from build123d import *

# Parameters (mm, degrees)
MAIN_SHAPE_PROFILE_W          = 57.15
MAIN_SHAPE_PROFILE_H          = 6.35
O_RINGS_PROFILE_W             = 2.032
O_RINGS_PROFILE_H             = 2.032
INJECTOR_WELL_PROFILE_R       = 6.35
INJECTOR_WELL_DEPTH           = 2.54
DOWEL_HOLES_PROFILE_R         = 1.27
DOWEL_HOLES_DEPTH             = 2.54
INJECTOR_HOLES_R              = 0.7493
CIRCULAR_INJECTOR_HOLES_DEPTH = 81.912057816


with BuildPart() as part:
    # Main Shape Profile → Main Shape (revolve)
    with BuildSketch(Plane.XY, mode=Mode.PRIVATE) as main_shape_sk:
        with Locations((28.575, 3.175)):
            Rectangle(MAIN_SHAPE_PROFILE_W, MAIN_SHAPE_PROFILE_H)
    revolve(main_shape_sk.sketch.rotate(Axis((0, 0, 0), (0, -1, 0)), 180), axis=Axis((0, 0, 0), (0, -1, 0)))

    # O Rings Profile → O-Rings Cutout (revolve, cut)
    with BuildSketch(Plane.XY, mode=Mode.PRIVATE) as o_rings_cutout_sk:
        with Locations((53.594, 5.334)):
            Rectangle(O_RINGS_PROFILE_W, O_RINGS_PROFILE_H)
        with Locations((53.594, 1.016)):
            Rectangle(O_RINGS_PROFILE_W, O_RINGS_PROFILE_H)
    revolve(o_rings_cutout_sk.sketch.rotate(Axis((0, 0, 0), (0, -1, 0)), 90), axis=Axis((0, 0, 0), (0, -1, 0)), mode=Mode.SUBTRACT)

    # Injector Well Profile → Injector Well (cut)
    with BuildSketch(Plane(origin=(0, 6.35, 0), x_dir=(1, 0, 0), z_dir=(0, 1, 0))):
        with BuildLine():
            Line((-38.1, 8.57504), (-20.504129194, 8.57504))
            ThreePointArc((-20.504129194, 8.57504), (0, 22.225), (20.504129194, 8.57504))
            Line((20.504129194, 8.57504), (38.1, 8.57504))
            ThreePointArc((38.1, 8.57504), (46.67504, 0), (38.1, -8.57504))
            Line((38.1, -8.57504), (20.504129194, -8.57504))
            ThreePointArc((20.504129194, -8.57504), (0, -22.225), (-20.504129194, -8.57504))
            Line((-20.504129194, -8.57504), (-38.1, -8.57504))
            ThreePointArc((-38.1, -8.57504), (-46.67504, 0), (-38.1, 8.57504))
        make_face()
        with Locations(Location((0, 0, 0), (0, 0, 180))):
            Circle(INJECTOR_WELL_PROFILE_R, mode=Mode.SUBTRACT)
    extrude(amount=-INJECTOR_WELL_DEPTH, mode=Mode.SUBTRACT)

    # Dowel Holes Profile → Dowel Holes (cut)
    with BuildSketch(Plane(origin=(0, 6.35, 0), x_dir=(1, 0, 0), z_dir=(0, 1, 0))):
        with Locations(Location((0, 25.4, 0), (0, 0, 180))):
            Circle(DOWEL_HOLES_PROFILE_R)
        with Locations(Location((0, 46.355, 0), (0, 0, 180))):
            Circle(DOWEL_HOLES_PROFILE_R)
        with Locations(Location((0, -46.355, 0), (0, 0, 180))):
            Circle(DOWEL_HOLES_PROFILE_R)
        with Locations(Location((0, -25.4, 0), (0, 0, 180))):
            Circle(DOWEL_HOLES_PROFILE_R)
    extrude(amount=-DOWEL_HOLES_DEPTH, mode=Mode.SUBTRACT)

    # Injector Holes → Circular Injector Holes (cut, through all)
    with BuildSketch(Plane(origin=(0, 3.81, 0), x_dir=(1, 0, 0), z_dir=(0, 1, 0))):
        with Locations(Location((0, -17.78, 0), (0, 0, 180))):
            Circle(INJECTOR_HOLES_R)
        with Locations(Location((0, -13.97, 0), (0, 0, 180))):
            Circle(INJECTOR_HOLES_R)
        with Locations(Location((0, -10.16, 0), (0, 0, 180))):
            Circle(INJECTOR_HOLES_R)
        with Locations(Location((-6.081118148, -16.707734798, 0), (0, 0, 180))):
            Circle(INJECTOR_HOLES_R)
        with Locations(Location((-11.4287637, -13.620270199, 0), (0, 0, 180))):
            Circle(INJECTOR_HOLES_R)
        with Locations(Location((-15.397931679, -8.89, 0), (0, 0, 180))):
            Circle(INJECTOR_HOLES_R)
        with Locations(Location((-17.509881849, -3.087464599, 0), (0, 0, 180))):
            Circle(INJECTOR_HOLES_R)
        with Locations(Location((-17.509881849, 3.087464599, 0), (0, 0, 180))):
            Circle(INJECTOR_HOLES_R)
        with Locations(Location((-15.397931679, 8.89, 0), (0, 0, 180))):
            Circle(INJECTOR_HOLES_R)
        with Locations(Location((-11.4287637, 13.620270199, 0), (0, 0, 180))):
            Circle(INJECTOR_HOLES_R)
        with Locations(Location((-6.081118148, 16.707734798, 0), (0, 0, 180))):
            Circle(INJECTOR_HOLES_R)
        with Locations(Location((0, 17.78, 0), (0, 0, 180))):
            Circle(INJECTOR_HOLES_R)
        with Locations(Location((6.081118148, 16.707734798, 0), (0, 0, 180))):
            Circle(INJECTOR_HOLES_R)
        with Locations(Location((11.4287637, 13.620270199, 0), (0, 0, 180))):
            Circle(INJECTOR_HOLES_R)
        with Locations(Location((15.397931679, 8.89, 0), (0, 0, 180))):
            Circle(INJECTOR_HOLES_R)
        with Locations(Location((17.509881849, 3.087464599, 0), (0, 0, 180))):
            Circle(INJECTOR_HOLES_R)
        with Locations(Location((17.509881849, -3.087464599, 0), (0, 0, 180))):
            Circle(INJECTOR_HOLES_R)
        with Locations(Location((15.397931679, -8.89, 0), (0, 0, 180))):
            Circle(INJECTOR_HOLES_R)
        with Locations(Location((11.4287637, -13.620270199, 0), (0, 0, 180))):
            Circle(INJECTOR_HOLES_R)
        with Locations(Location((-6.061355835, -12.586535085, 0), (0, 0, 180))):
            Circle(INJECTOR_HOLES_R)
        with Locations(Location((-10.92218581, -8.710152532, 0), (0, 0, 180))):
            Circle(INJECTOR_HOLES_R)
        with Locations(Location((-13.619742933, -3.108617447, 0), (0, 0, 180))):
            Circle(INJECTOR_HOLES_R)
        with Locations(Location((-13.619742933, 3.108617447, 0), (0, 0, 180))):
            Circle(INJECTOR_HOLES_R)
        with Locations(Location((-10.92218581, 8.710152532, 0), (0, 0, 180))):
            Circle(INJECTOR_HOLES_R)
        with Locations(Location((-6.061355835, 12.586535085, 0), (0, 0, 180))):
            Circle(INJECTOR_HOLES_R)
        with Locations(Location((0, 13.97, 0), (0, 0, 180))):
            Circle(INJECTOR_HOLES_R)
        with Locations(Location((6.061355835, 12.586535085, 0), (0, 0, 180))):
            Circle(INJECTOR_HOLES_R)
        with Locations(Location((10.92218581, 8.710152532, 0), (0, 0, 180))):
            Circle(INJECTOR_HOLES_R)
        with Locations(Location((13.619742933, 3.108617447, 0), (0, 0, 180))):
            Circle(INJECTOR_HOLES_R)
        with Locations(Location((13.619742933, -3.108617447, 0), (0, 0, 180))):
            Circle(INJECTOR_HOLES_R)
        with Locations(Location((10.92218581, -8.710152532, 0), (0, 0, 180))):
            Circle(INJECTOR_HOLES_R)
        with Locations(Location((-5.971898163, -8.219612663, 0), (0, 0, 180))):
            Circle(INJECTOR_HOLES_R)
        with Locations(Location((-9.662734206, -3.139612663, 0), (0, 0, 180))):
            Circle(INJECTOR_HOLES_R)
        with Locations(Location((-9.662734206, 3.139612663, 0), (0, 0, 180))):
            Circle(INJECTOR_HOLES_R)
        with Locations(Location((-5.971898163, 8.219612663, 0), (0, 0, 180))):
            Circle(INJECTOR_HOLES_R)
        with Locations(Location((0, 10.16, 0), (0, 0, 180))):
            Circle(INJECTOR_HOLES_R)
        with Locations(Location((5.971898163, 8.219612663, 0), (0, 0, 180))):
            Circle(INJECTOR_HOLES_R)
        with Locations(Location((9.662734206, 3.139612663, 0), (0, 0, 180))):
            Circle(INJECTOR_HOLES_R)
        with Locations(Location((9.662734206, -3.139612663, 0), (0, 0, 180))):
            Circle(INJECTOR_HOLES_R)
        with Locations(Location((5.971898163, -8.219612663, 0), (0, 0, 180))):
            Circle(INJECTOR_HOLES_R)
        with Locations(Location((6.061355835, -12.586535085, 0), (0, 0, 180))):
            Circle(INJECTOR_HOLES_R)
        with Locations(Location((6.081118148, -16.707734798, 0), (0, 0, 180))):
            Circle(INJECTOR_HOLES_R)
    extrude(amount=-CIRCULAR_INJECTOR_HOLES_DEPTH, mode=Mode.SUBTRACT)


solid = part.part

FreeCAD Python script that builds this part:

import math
import FreeCAD as App
import Part
import Sketcher
from FreeCAD import Vector
Q = App.Units.Quantity

doc = App.newDocument("Part")
body = doc.addObject("PartDesign::Body", "Body")

# Sketch on XY plane
sketch1 = body.newObject("Sketcher::SketchObject", "Sketch")
sketch1.AttachmentSupport = (doc.getObject("XY_Plane"), [""])
sketch1.MapMode = "FlatFace"
sketch1.addGeometry([
    Part.LineSegment(Vector(0, 6, 0), Vector(0, 0, 0)),
    Part.LineSegment(Vector(0, 0, 0), Vector(57, 0, 0)),
    Part.LineSegment(Vector(57, 0, 0), Vector(57, 6, 0)),
    Part.LineSegment(Vector(57, 6, 0), Vector(0, 6, 0)),
], False)
sketch1.addConstraint([
    Sketcher.Constraint("Coincident", 0, 2, 1, 1),
    Sketcher.Constraint("Coincident", 1, 2, 2, 1),
    Sketcher.Constraint("Coincident", 2, 2, 3, 1),
    Sketcher.Constraint("Coincident", 3, 2, 0, 1),
    Sketcher.Constraint("Vertical", 0),
    Sketcher.Constraint("Horizontal", 1),
    Sketcher.Constraint("Vertical", 2),
    Sketcher.Constraint("Horizontal", 3),
    Sketcher.Constraint("Coincident", 0, 2, -1, 1),
    Sketcher.Constraint("DistanceX", 1, 1, 1, 2, Q("2.25 in")),
    Sketcher.Constraint("DistanceY", 0, 2, 0, 1, Q("0.25 in")),
])
revolution = body.newObject("PartDesign::Revolution", "Revolution")
revolution.Profile = sketch1
revolution.ReferenceAxis = (sketch1, ["V_Axis"])
revolution.Angle = 360

# Sketch on XY plane
sketch2 = body.newObject("Sketcher::SketchObject", "Sketch001")
sketch2.AttachmentSupport = (doc.getObject("XY_Plane"), [""])
sketch2.MapMode = "FlatFace"
sketch2.addGeometry([
    Part.LineSegment(Vector(52.6, 6.3, 0), Vector(52.6, 4.3, 0)),  # 0
    Part.LineSegment(Vector(52.6, 4.3, 0), Vector(54.6, 4.3, 0)),  # 1
    Part.LineSegment(Vector(54.6, 4.3, 0), Vector(54.6, 6.3, 0)),  # 2
    Part.LineSegment(Vector(54.6, 6.3, 0), Vector(52.6, 6.3, 0)),  # 3
    Part.LineSegment(Vector(52.6, 2, 0), Vector(52.6, 0, 0)),  # 4
    Part.LineSegment(Vector(52.6, 0, 0), Vector(54.6, 0, 0)),  # 5
    Part.LineSegment(Vector(54.6, 0, 0), Vector(54.6, 2, 0)),  # 6
    Part.LineSegment(Vector(54.6, 2, 0), Vector(52.6, 2, 0)),  # 7
], False)
sketch2.addConstraint([
    Sketcher.Constraint("Coincident", 0, 2, 1, 1),
    Sketcher.Constraint("Coincident", 1, 2, 2, 1),
    Sketcher.Constraint("Coincident", 2, 2, 3, 1),
    Sketcher.Constraint("Coincident", 3, 2, 0, 1),
    Sketcher.Constraint("Coincident", 4, 2, 5, 1),
    Sketcher.Constraint("Coincident", 5, 2, 6, 1),
    Sketcher.Constraint("Coincident", 6, 2, 7, 1),
    Sketcher.Constraint("Coincident", 7, 2, 4, 1),
    Sketcher.Constraint("Vertical", 0),
    Sketcher.Constraint("Horizontal", 1),
    Sketcher.Constraint("Vertical", 2),
    Sketcher.Constraint("Horizontal", 3),
    Sketcher.Constraint("Vertical", 4),
    Sketcher.Constraint("Horizontal", 5),
    Sketcher.Constraint("Vertical", 6),
    Sketcher.Constraint("Horizontal", 7),
    Sketcher.Constraint("PointOnObject", 4, 2, -1),
    Sketcher.Constraint("Vertical", 3, 2, 4, 2),
    Sketcher.Constraint("Vertical", 2, 2, 5, 2),
    Sketcher.Constraint("Equal", 7, 0),
    Sketcher.Constraint("Equal", 2, 4),
    Sketcher.Constraint("DistanceX", 1, 1, 1, 2, Q("0.08 in")),
    Sketcher.Constraint("DistanceX", -1, 1, 0, 2, Q("2.07 in")),
    Sketcher.Constraint("DistanceY", -1, 1, 0, 2, Q("0.17 in")),
])
groove = body.newObject("PartDesign::Groove", "Groove")
groove.Profile = sketch2
groove.ReferenceAxis = (sketch2, ["V_Axis"])
groove.Angle = 360

# Sketch on XZ plane
sketch3 = body.newObject("Sketcher::SketchObject", "Sketch002")
sketch3.AttachmentSupport = (doc.getObject("XZ_Plane"), [""])
sketch3.MapMode = "FlatFace"
sketch3.AttachmentOffset = App.Placement(Vector(0, 0, -0.25 * 25.4), App.Rotation())
sketch3.addGeometry([
    Part.LineSegment(Vector(-21, -9, 0), Vector(-38, -9, 0)),  # 0
    Part.ArcOfCircle(Part.Circle(Vector(-38, 0, 0), Vector(0, 0, 1), 9), math.radians(90), math.radians(270)),  # 1
    Part.LineSegment(Vector(-38, 9, 0), Vector(-21, 9, 0)),  # 2
    Part.ArcOfCircle(Part.Circle(Vector(0, 0, 0), Vector(0, 0, 1), 22), math.radians(23), math.radians(157)),  # 3
    Part.LineSegment(Vector(21, 9, 0), Vector(38, 9, 0)),  # 4
    Part.ArcOfCircle(Part.Circle(Vector(38, 0, 0), Vector(0, 0, 1), 9), math.radians(-90), math.radians(90)),  # 5
    Part.LineSegment(Vector(38, -9, 0), Vector(21, -9, 0)),  # 6
    Part.ArcOfCircle(Part.Circle(Vector(0, 0, 0), Vector(0, 0, 1), 22), math.radians(-157), math.radians(-23)),  # 7
    Part.Circle(Vector(0, 0, 0), Vector(0, 0, 1), 6),  # 8
], False)
sketch3.addConstraint([
    Sketcher.Constraint("Tangent", 0, 2, 1, 2),
    Sketcher.Constraint("Tangent", 1, 1, 2, 1),
    Sketcher.Constraint("Coincident", 2, 2, 3, 2),
    Sketcher.Constraint("Coincident", 3, 1, 4, 1),
    Sketcher.Constraint("Tangent", 4, 2, 5, 2),
    Sketcher.Constraint("Tangent", 5, 1, 6, 1),
    Sketcher.Constraint("Coincident", 6, 2, 7, 2),
    Sketcher.Constraint("Coincident", 7, 1, 0, 1),
    Sketcher.Constraint("Horizontal", 0),
    Sketcher.Constraint("Horizontal", 2),
    Sketcher.Constraint("Horizontal", 4),
    Sketcher.Constraint("Horizontal", 6),
    Sketcher.Constraint("Coincident", 3, 3, -1, 1),
    Sketcher.Constraint("Coincident", 7, 3, -1, 1),
    Sketcher.Constraint("Coincident", 8, 3, -1, 1),
    Sketcher.Constraint("Equal", 1, 5),
    Sketcher.Constraint("Equal", 3, 7),
    Sketcher.Constraint("Symmetric", 1, 3, 5, 3, -1, 1),
    Sketcher.Constraint("PointOnObject", 1, 3, -1),
    Sketcher.Constraint("Diameter", 8, Q("0.5 in")),
    Sketcher.Constraint("Radius", 3, Q("0.875 in")),
    Sketcher.Constraint("DistanceX", 1, 3, 5, 3, Q("3 in")),
    Sketcher.Constraint("Radius", 1, Q("0.3376 in")),
])
pocket1 = body.newObject("PartDesign::Pocket", "Pocket")
pocket1.Profile = sketch3
pocket1.Length = Q("0.1 in")
pocket1.Reversed = True

# Sketch on XZ plane
sketch4 = body.newObject("Sketcher::SketchObject", "Sketch003")
sketch4.AttachmentSupport = (doc.getObject("XZ_Plane"), [""])
sketch4.MapMode = "FlatFace"
sketch4.AttachmentOffset = App.Placement(Vector(0, 0, -0.25 * 25.4), App.Rotation())
sketch4.addGeometry([
    Part.Circle(Vector(0, -25.4, 0), Vector(0, 0, 1), 1.3),
    Part.Circle(Vector(0, -46.4, 0), Vector(0, 0, 1), 1.3),
    Part.Circle(Vector(0, 46.4, 0), Vector(0, 0, 1), 1.3),
    Part.Circle(Vector(0, 25.4, 0), Vector(0, 0, 1), 1.3),
], False)
sketch4.addConstraint([
    Sketcher.Constraint("Equal", 0, 1),
    Sketcher.Constraint("Equal", 1, 2),
    Sketcher.Constraint("Equal", 2, 3),
    Sketcher.Constraint("Symmetric", 1, 3, 2, 3, -1, 1),
    Sketcher.Constraint("Symmetric", 0, 3, 3, 3, -1, 1),
    Sketcher.Constraint("PointOnObject", 0, 3, -2),
    Sketcher.Constraint("PointOnObject", 1, 3, -2),
    Sketcher.Constraint("Diameter", 0, Q("0.1 in")),
    Sketcher.Constraint("DistanceY", 0, 3, -1, 1, Q("1 in")),
    Sketcher.Constraint("DistanceY", 1, 3, 2, 3, Q("3.65 in")),
])
pocket2 = body.newObject("PartDesign::Pocket", "Pocket001")
pocket2.Profile = sketch4
pocket2.Length = Q("0.1 in")
pocket2.Reversed = True

# Sketch on XZ plane
sketch5 = body.newObject("Sketcher::SketchObject", "Sketch004")
sketch5.AttachmentSupport = (doc.getObject("XZ_Plane"), [""])
sketch5.MapMode = "FlatFace"
sketch5.AttachmentOffset = App.Placement(Vector(0, 0, -0.15 * 25.4), App.Rotation())
sketch5.addGeometry([
    Part.Circle(Vector(0, 17.8, 0), Vector(0, 0, 1), 0.7),  # 0
    Part.Circle(Vector(0, 14, 0), Vector(0, 0, 1), 0.7),  # 1
    Part.Circle(Vector(0, 10.2, 0), Vector(0, 0, 1), 0.7),  # 2
    Part.Circle(Vector(-6.1, 16.7, 0), Vector(0, 0, 1), 0.7),  # 3
    Part.Circle(Vector(-11.4, 13.6, 0), Vector(0, 0, 1), 0.7),  # 4
    Part.Circle(Vector(-15.4, 8.9, 0), Vector(0, 0, 1), 0.7),  # 5
    Part.Circle(Vector(-17.5, 3.1, 0), Vector(0, 0, 1), 0.7),  # 6
    Part.Circle(Vector(-17.5, -3.1, 0), Vector(0, 0, 1), 0.7),  # 7
    Part.Circle(Vector(-15.4, -8.9, 0), Vector(0, 0, 1), 0.7),  # 8
    Part.Circle(Vector(-11.4, -13.6, 0), Vector(0, 0, 1), 0.7),  # 9
    Part.Circle(Vector(-6.1, -16.7, 0), Vector(0, 0, 1), 0.7),  # 10
    Part.Circle(Vector(0, -17.8, 0), Vector(0, 0, 1), 0.7),  # 11
    Part.Circle(Vector(6.1, -16.7, 0), Vector(0, 0, 1), 0.7),  # 12
    Part.Circle(Vector(11.4, -13.6, 0), Vector(0, 0, 1), 0.7),  # 13
    Part.Circle(Vector(15.4, -8.9, 0), Vector(0, 0, 1), 0.7),  # 14
    Part.Circle(Vector(17.5, -3.1, 0), Vector(0, 0, 1), 0.7),  # 15
    Part.Circle(Vector(17.5, 3.1, 0), Vector(0, 0, 1), 0.7),  # 16
    Part.Circle(Vector(15.4, 8.9, 0), Vector(0, 0, 1), 0.7),  # 17
    Part.Circle(Vector(11.4, 13.6, 0), Vector(0, 0, 1), 0.7),  # 18
    Part.Circle(Vector(-6.1, 12.6, 0), Vector(0, 0, 1), 0.7),  # 19
    Part.Circle(Vector(-10.9, 8.7, 0), Vector(0, 0, 1), 0.7),  # 20
    Part.Circle(Vector(-13.6, 3.1, 0), Vector(0, 0, 1), 0.7),  # 21
    Part.Circle(Vector(-13.6, -3.1, 0), Vector(0, 0, 1), 0.7),  # 22
    Part.Circle(Vector(-10.9, -8.7, 0), Vector(0, 0, 1), 0.7),  # 23
    Part.Circle(Vector(-6.1, -12.6, 0), Vector(0, 0, 1), 0.7),  # 24
    Part.Circle(Vector(0, -14, 0), Vector(0, 0, 1), 0.7),  # 25
    Part.Circle(Vector(6.1, -12.6, 0), Vector(0, 0, 1), 0.7),  # 26
    Part.Circle(Vector(10.9, -8.7, 0), Vector(0, 0, 1), 0.7),  # 27
    Part.Circle(Vector(13.6, -3.1, 0), Vector(0, 0, 1), 0.7),  # 28
    Part.Circle(Vector(13.6, 3.1, 0), Vector(0, 0, 1), 0.7),  # 29
    Part.Circle(Vector(10.9, 8.7, 0), Vector(0, 0, 1), 0.7),  # 30
    Part.Circle(Vector(-6, 8.2, 0), Vector(0, 0, 1), 0.7),  # 31
    Part.Circle(Vector(-9.7, 3.1, 0), Vector(0, 0, 1), 0.7),  # 32
    Part.Circle(Vector(-9.7, -3.1, 0), Vector(0, 0, 1), 0.7),  # 33
    Part.Circle(Vector(-6, -8.2, 0), Vector(0, 0, 1), 0.7),  # 34
    Part.Circle(Vector(0, -10.2, 0), Vector(0, 0, 1), 0.7),  # 35
    Part.Circle(Vector(6, -8.2, 0), Vector(0, 0, 1), 0.7),  # 36
    Part.Circle(Vector(9.7, -3.1, 0), Vector(0, 0, 1), 0.7),  # 37
    Part.Circle(Vector(9.7, 3.1, 0), Vector(0, 0, 1), 0.7),  # 38
    Part.Circle(Vector(6, 8.2, 0), Vector(0, 0, 1), 0.7),  # 39
    Part.Circle(Vector(6.1, 12.6, 0), Vector(0, 0, 1), 0.7),  # 40
    Part.Circle(Vector(6.1, 16.7, 0), Vector(0, 0, 1), 0.7),  # 41
], False)
sketch5.addConstraint([
    Sketcher.Constraint("Equal", 0, 1),
    Sketcher.Constraint("Equal", 1, 2),
    Sketcher.Constraint("Equal", 2, 3),
    Sketcher.Constraint("Equal", 3, 4),
    Sketcher.Constraint("Equal", 4, 5),
    Sketcher.Constraint("Equal", 5, 6),
    Sketcher.Constraint("Equal", 6, 7),
    Sketcher.Constraint("Equal", 7, 8),
    Sketcher.Constraint("Equal", 8, 9),
    Sketcher.Constraint("Equal", 9, 10),
    Sketcher.Constraint("Equal", 10, 11),
    Sketcher.Constraint("Equal", 11, 12),
    Sketcher.Constraint("Equal", 12, 13),
    Sketcher.Constraint("Equal", 13, 14),
    Sketcher.Constraint("Equal", 14, 15),
    Sketcher.Constraint("Equal", 15, 16),
    Sketcher.Constraint("Equal", 16, 17),
    Sketcher.Constraint("Equal", 17, 18),
    Sketcher.Constraint("Equal", 18, 19),
    Sketcher.Constraint("Equal", 19, 20),
    Sketcher.Constraint("Equal", 20, 21),
    Sketcher.Constraint("Equal", 21, 22),
    Sketcher.Constraint("Equal", 22, 23),
    Sketcher.Constraint("Equal", 23, 24),
    Sketcher.Constraint("Equal", 24, 25),
    Sketcher.Constraint("Equal", 25, 26),
    Sketcher.Constraint("Equal", 26, 27),
    Sketcher.Constraint("Equal", 27, 28),
    Sketcher.Constraint("Equal", 28, 29),
    Sketcher.Constraint("Equal", 29, 30),
    Sketcher.Constraint("Equal", 30, 31),
    Sketcher.Constraint("Equal", 31, 32),
    Sketcher.Constraint("Equal", 32, 33),
    Sketcher.Constraint("Equal", 33, 34),
    Sketcher.Constraint("Equal", 34, 35),
    Sketcher.Constraint("Equal", 35, 36),
    Sketcher.Constraint("Equal", 36, 37),
    Sketcher.Constraint("Equal", 37, 38),
    Sketcher.Constraint("Equal", 38, 39),
    Sketcher.Constraint("Equal", 39, 40),
    Sketcher.Constraint("Equal", 40, 41),
    Sketcher.Constraint("Symmetric", 0, 3, 11, 3, -1, 1),
    Sketcher.Constraint("Symmetric", 3, 3, 12, 3, -1, 1),
    Sketcher.Constraint("Symmetric", 4, 3, 13, 3, -1, 1),
    Sketcher.Constraint("Symmetric", 5, 3, 14, 3, -1, 1),
    Sketcher.Constraint("Symmetric", 6, 3, 15, 3, -1, 1),
    Sketcher.Constraint("Symmetric", 7, 3, 16, 3, -1, 1),
    Sketcher.Constraint("Symmetric", 8, 3, 17, 3, -1, 1),
    Sketcher.Constraint("Symmetric", 9, 3, 18, 3, -1, 1),
    Sketcher.Constraint("Symmetric", 1, 3, 25, 3, -1, 1),
    Sketcher.Constraint("Symmetric", 19, 3, 26, 3, -1, 1),
    Sketcher.Constraint("Symmetric", 20, 3, 27, 3, -1, 1),
    Sketcher.Constraint("Symmetric", 21, 3, 28, 3, -1, 1),
    Sketcher.Constraint("Symmetric", 22, 3, 29, 3, -1, 1),
    Sketcher.Constraint("Symmetric", 23, 3, 30, 3, -1, 1),
    Sketcher.Constraint("Symmetric", 2, 3, 35, 3, -1, 1),
    Sketcher.Constraint("Symmetric", 31, 3, 36, 3, -1, 1),
    Sketcher.Constraint("Symmetric", 32, 3, 37, 3, -1, 1),
    Sketcher.Constraint("Symmetric", 33, 3, 38, 3, -1, 1),
    Sketcher.Constraint("Symmetric", 34, 3, 39, 3, -1, 1),
    Sketcher.Constraint("Symmetric", 24, 3, 40, 3, -1, 1),
    Sketcher.Constraint("Symmetric", 10, 3, 41, 3, -1, 1),
    Sketcher.Constraint("Symmetric", 10, 3, 12, 3, -2),
    Sketcher.Constraint("Symmetric", 9, 3, 13, 3, -2),
    Sketcher.Constraint("Symmetric", 8, 3, 14, 3, -2),
    Sketcher.Constraint("Symmetric", 7, 3, 15, 3, -2),
    Sketcher.Constraint("Symmetric", 24, 3, 26, 3, -2),
    Sketcher.Constraint("Symmetric", 23, 3, 27, 3, -2),
    Sketcher.Constraint("Symmetric", 22, 3, 28, 3, -2),
    Sketcher.Constraint("Symmetric", 34, 3, 36, 3, -2),
    Sketcher.Constraint("Symmetric", 33, 3, 37, 3, -2),
    Sketcher.Constraint("PointOnObject", 0, 3, -2),
    Sketcher.Constraint("PointOnObject", 1, 3, -2),
    Sketcher.Constraint("PointOnObject", 2, 3, -2),
    Sketcher.Constraint("Diameter", 0, Q("0.059 in")),
    Sketcher.Constraint("DistanceY", -1, 1, 0, 3, Q("0.7 in")),
    Sketcher.Constraint("DistanceY", -1, 1, 2, 3, Q("0.4 in")),
    Sketcher.Constraint("DistanceY", 5, 3, 1, 3, Q("0.2 in")),
    Sketcher.Constraint("DistanceY", 8, 3, 5, 3, Q("0.7 in")),
    Sketcher.Constraint("DistanceY", 32, 3, 31, 3, Q("0.2 in")),
    Sketcher.Constraint("DistanceX", 39, 3, 41, 3, Q("0.0043 in")),
    Sketcher.Constraint("DistanceX", 31, 3, -1, 1, Q("5.971898 mm")),
    Sketcher.Constraint("DistanceY", 7, 3, 3, 3, Q("19.795199 mm")),
    Sketcher.Constraint("DistanceX", 7, 3, 12, 3, Q("23.591 mm")),
    Sketcher.Constraint("DistanceY", 19, 3, 3, 3, Q("4.1212 mm")),
    Sketcher.Constraint("DistanceY", -1, 1, 4, 3, Q("13.62027 mm")),
    Sketcher.Constraint("DistanceX", 5, 3, -1, 1, Q("15.397932 mm")),
    Sketcher.Constraint("DistanceX", 6, 3, 4, 3, Q("6.081118 mm")),
    Sketcher.Constraint("DistanceY", 6, 3, 3, 3, Q("13.62027 mm")),
    Sketcher.Constraint("DistanceX", 20, 3, 19, 3, Q("4.86083 mm")),
    Sketcher.Constraint("DistanceX", 6, 3, 21, 3, Q("3.890139 mm")),
    Sketcher.Constraint("DistanceY", 31, 3, 20, 3, Q("0.49054 mm")),
    Sketcher.Constraint("DistanceX", 21, 3, 32, 3, Q("3.957009 mm")),
    Sketcher.Constraint("DistanceX", 20, 3, 32, 3, Q("1.259452 mm")),
    Sketcher.Constraint("DistanceY", 22, 3, 32, 3, Q("6.24823 mm")),
    Sketcher.Constraint("DistanceY", 6, 3, 32, 3, Q("0.052148 mm")),
])
pocket3 = body.newObject("PartDesign::Pocket", "Pocket002")
pocket3.Profile = sketch5
pocket3.Type = "ThroughAll"
pocket3.Reversed = True

doc.recompute()
